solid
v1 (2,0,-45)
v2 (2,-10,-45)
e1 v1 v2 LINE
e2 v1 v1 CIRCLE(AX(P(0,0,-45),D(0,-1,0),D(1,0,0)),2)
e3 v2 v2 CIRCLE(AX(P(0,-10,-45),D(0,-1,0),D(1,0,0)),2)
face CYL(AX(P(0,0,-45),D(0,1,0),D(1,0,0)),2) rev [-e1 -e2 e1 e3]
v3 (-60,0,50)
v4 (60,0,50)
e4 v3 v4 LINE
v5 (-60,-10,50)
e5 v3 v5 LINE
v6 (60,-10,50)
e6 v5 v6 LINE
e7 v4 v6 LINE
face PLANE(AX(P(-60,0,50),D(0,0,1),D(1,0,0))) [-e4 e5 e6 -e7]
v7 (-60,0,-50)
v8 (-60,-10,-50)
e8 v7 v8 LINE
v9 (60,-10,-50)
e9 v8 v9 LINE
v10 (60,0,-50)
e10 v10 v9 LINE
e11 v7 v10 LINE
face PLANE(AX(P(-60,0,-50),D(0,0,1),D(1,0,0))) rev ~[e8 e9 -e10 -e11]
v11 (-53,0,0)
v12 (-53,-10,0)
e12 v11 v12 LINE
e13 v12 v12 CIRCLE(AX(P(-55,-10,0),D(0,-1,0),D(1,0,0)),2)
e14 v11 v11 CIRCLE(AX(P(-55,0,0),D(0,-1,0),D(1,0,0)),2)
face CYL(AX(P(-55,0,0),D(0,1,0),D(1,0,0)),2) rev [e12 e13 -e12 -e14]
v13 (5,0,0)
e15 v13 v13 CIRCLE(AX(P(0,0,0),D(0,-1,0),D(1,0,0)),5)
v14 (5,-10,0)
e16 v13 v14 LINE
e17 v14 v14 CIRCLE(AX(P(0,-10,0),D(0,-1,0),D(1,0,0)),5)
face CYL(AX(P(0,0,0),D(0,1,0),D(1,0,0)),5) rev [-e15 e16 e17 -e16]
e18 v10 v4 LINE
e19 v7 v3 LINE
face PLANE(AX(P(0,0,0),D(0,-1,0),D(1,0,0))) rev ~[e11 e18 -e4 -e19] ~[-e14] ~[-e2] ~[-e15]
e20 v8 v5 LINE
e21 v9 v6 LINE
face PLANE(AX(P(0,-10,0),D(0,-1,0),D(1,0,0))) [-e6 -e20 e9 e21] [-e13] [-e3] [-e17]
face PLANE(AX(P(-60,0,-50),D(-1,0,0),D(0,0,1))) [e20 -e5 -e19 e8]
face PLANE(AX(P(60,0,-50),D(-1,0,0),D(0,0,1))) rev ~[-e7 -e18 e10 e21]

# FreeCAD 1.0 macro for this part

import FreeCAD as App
import Part
import Sketcher
from FreeCAD import Vector
Q = App.Units.Quantity


def add_polygon(sketch, points):
    """Adds a closed chain of lines whose ends are joined by coincident constraints."""
    first, n = sketch.GeometryCount, len(points)
    for a, b in zip(points, points[1:] + points[:1]):
        sketch.addGeometry(Part.LineSegment(App.Vector(*a, 0), App.Vector(*b, 0)), False)
    for i in range(n):
        sketch.addConstraint(Sketcher.Constraint("Coincident", first + i, 2, first + (i + 1) % n, 1))

doc = App.newDocument("Part")
body = doc.addObject("PartDesign::Body", "Body")

# Sketch on XZ plane
sketch1 = body.newObject("Sketcher::SketchObject", "Sketch")
sketch1.AttachmentSupport = (doc.getObject("XZ_Plane"), [""])
sketch1.MapMode = "FlatFace"
add_polygon(sketch1, [(-60, 50), (-60, -50), (60, -50), (60, 50)])  # lines 0-3
sketch1.addGeometry(Part.Circle(Vector(0, -45, 0), Vector(0, 0, 1), 2), False)  # 4
sketch1.addGeometry(Part.Circle(Vector(-55, 0, 0), Vector(0, 0, 1), 2), False)  # 5
sketch1.addGeometry(Part.Circle(Vector(0, 0, 0), Vector(0, 0, 1), 5), False)  # 6
sketch1.addConstraint([
    Sketcher.Constraint("Vertical", 0),
    Sketcher.Constraint("Horizontal", 1),
    Sketcher.Constraint("Vertical", 2),
    Sketcher.Constraint("Horizontal", 3),
    Sketcher.Constraint("Coincident", 6, 3, -1, 1),
    Sketcher.Constraint("Equal", 4, 5),
    Sketcher.Constraint("Symmetric", 0, 2, 2, 2, -1, 1),
    Sketcher.Constraint("PointOnObject", 4, 3, -2),
    Sketcher.Constraint("PointOnObject", 5, 3, -1),
    Sketcher.Constraint("Diameter", 4, Q("4 mm")),
    Sketcher.Constraint("Diameter", 6, Q("10 mm")),
    Sketcher.Constraint("DistanceX", 1, 1, 1, 2, Q("120 mm")),
    Sketcher.Constraint("DistanceY", 0, 2, 0, 1, Q("100 mm")),
    Sketcher.Constraint("DistanceY", 4, 3, -1, 1, Q("45 mm")),
    Sketcher.Constraint("DistanceX", 5, 3, -1, 1, Q("55 mm")),
])
pad1 = body.newObject("PartDesign::Pad", "Pad")
pad1.Profile = sketch1
pad1.Length = 10

doc.recompute()
